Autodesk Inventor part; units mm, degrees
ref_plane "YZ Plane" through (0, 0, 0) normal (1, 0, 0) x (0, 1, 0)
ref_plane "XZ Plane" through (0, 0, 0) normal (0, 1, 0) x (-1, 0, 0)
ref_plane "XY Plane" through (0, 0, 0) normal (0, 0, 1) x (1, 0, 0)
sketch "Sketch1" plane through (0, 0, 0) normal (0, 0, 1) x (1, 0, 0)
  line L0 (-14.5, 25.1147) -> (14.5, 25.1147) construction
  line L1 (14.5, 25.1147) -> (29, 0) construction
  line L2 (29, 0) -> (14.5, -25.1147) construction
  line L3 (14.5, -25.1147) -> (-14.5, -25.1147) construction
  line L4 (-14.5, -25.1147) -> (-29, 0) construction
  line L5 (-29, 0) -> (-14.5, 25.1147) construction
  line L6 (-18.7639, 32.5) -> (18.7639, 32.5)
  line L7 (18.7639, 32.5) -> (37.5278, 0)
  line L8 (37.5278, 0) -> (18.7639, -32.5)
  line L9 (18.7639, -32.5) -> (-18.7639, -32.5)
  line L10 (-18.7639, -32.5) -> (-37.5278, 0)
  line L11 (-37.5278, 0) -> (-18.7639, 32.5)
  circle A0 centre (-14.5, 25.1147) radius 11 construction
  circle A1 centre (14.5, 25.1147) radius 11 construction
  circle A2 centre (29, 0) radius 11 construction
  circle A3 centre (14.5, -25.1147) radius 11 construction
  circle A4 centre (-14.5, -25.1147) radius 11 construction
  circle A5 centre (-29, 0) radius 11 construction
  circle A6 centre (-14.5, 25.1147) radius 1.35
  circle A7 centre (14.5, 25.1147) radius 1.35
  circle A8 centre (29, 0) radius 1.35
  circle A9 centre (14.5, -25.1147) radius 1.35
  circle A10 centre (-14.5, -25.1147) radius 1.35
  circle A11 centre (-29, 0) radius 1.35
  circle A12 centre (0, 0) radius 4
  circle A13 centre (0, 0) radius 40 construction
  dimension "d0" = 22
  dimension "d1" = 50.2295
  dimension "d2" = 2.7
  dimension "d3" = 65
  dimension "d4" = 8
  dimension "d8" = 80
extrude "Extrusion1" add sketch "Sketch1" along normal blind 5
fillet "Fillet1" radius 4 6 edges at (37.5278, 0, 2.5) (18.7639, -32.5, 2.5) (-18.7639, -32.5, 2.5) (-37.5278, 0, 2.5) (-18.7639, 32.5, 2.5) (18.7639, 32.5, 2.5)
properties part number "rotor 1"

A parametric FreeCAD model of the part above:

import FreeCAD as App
import Part
import Sketcher
from FreeCAD import Vector
Q = App.Units.Quantity


def edges_at(feature, points):
    """Names of the edges that pass closest to the given points."""
    edges = feature.Shape.Edges
    near = lambda p: min(range(len(edges)), key=lambda i: edges[i].distToShape(Part.Vertex(*p))[0])
    return sorted({f"Edge{near(p) + 1}" for p in points})

doc = App.newDocument("Part")
body = doc.addObject("PartDesign::Body", "Body")

sketch1 = doc.addObject("Sketcher::SketchObject", "Sketch")
body.addObject(sketch1)
sketch1.AttachmentSupport = (doc.XY_Plane, [""])
sketch1.MapMode = "FlatFace"
sketch1.addGeometry([
    Part.LineSegment(Vector(18.7639, 32.5, 0), Vector(-18.7639, 32.5, 0)),
    Part.LineSegment(Vector(-18.7639, 32.5, 0), Vector(-37.5278, 0, 0)),
    Part.LineSegment(Vector(-37.5278, 0, 0), Vector(-18.7639, -32.5, 0)),
    Part.LineSegment(Vector(-18.7639, -32.5, 0), Vector(18.7639, -32.5, 0)),
    Part.LineSegment(Vector(18.7639, -32.5, 0), Vector(37.5278, 0, 0)),
    Part.LineSegment(Vector(37.5278, 0, 0), Vector(18.7639, 32.5, 0)),
    Part.Circle(Vector(-14.5, -25.1147, 0), Vector(0, 0, 1), 1.35),
    Part.Circle(Vector(14.5, -25.1147, 0), Vector(0, 0, 1), 1.35),
    Part.Circle(Vector(-29, 0, 0), Vector(0, 0, 1), 1.35),
    Part.Circle(Vector(-14.5, 25.1147, 0), Vector(0, 0, 1), 1.35),
    Part.Circle(Vector(0, 0, 0), Vector(0, 0, 1), 4),
    Part.Circle(Vector(29, 0, 0), Vector(0, 0, 1), 1.35),
    Part.Circle(Vector(14.5, 25.1147, 0), Vector(0, 0, 1), 1.35),
], False)
sketch1.addConstraint([
    Sketcher.Constraint("Coincident", 0, 2, 1, 1),
    Sketcher.Constraint("Coincident", 1, 2, 2, 1),
    Sketcher.Constraint("Coincident", 2, 2, 3, 1),
    Sketcher.Constraint("Coincident", 3, 2, 4, 1),
    Sketcher.Constraint("Coincident", 4, 2, 5, 1),
    Sketcher.Constraint("Coincident", 5, 2, 0, 1),
    Sketcher.Constraint("Horizontal", 0),
    Sketcher.Constraint("Horizontal", 3),
    Sketcher.Constraint("Coincident", 10, 3, -1, 1),
    Sketcher.Constraint("Equal", 6, 7),
    Sketcher.Constraint("Equal", 7, 8),
    Sketcher.Constraint("Equal", 8, 9),
    Sketcher.Constraint("Equal", 9, 11),
    Sketcher.Constraint("Equal", 11, 12),
    Sketcher.Constraint("Symmetric", 7, 3, 9, 3, -1, 1),
    Sketcher.Constraint("Symmetric", 8, 3, 11, 3, -1, 1),
    Sketcher.Constraint("Symmetric", 6, 3, 12, 3, -1, 1),
    Sketcher.Constraint("Symmetric", 0, 2, 3, 2, -1, 1),
    Sketcher.Constraint("Symmetric", 1, 2, 4, 2, -1, 1),
    Sketcher.Constraint("Symmetric", 6, 3, 7, 3, -2),
    Sketcher.Constraint("PointOnObject", 8, 3, -1),
    Sketcher.Constraint("PointOnObject", 1, 2, -1),
    Sketcher.Constraint("Parallel", 2, 5),
    Sketcher.Constraint("Vertical", 0, 2, 2, 2),
    Sketcher.Constraint("Diameter", 10, Q("8 mm")),
    Sketcher.Constraint("Diameter", 6, Q("2.7 mm")),
    Sketcher.Constraint("Angle", 1, Q("-120 deg")),
    Sketcher.Constraint("DistanceX", 8, 3, -1, 1, Q("29 mm")),
    Sketcher.Constraint("DistanceX", 6, 3, 7, 3, Q("29 mm")),
    Sketcher.Constraint("DistanceY", -1, 1, 0, 2, Q("32.5 mm")),
    Sketcher.Constraint("DistanceY", 6, 3, 9, 3, Q("50.2294 mm")),
    Sketcher.Constraint("DistanceX", 0, 2, 0, 1, Q("37.5278 mm")),
])
pad1 = doc.addObject("PartDesign::Pad", "Pad")
body.addObject(pad1)
pad1.Profile = sketch1
pad1.Length = 5
doc.recompute()

fillet = doc.addObject("PartDesign::Fillet", "Fillet")
body.addObject(fillet)
fillet.Base = (pad1, edges_at(pad1, [
    (37.528, 0, 2.5),
    (18.764, -32.5, 2.5),
    (-18.764, -32.5, 2.5),
    (-37.528, 0, 2.5),
    (-18.764, 32.5, 2.5),
    (18.764, 32.5, 2.5),
]))
fillet.Radius = 4

doc.recompute()
